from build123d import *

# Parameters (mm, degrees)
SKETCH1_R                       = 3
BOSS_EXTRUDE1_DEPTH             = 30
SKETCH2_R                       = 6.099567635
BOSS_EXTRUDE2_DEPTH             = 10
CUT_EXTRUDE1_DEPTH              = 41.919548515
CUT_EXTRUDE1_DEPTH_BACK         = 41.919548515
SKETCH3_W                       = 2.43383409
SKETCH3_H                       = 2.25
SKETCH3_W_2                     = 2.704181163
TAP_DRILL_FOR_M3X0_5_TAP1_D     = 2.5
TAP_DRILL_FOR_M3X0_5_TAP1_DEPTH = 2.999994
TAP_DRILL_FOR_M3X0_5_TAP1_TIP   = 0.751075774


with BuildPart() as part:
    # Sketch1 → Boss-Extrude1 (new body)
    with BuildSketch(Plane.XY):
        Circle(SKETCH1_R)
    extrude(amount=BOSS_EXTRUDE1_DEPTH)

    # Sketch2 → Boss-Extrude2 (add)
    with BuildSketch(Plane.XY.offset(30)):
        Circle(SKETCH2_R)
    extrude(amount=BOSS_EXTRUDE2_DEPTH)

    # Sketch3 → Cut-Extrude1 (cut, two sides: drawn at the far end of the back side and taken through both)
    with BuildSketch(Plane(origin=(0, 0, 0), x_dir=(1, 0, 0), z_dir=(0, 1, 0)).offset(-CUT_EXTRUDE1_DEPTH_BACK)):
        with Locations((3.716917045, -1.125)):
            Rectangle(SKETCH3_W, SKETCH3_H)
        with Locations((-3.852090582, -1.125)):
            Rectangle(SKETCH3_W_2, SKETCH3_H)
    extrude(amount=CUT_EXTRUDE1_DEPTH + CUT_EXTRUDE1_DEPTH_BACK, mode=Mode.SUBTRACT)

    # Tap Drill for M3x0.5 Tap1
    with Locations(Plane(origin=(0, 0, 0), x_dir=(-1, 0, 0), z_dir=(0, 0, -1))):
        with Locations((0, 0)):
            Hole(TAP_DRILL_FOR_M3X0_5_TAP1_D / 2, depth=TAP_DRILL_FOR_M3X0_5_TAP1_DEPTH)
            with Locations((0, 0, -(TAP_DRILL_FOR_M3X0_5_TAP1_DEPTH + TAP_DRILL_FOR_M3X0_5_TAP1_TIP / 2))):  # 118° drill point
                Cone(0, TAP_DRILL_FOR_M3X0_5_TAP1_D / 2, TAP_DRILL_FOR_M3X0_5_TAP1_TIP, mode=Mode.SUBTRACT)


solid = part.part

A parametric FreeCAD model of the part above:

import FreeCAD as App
import Part
import Sketcher
Q = App.Units.Quantity


def add_polygon(sketch, points):
    """Adds a closed chain of lines whose ends are joined by coincident constraints."""
    first, n = sketch.GeometryCount, len(points)
    for a, b in zip(points, points[1:] + points[:1]):
        sketch.addGeometry(Part.LineSegment(App.Vector(*a, 0), App.Vector(*b, 0)), False)
    for i in range(n):
        sketch.addConstraint(Sketcher.Constraint("Coincident", first + i, 2, first + (i + 1) % n, 1))

doc = App.newDocument("Part")
body = doc.addObject("PartDesign::Body", "Body")

# Sketch on XY plane
sketch1 = doc.addObject("Sketcher::SketchObject", "Sketch")
body.addObject(sketch1)
sketch1.AttachmentSupport = (doc.XY_Plane, [""])
sketch1.MapMode = "FlatFace"
sketch1.addGeometry(Part.Circle(App.Vector(0, 0, 0), App.Vector(0, 0, 1), 3), False)
sketch1.addConstraint([
    Sketcher.Constraint("Coincident", 0, 3, -1, 1),
    Sketcher.Constraint("Diameter", 0, Q("6 mm")),
])
pad1 = doc.addObject("PartDesign::Pad", "Pad")
body.addObject(pad1)
pad1.Profile = sketch1
pad1.Length = 30

# Sketch on XY plane
sketch2 = doc.addObject("Sketcher::SketchObject", "Sketch001")
body.addObject(sketch2)
sketch2.AttachmentSupport = (doc.XY_Plane, [""])
sketch2.MapMode = "FlatFace"
sketch2.AttachmentOffset = App.Placement(App.Vector(0, 0, 30), App.Rotation())
sketch2.addGeometry(Part.Circle(App.Vector(0, 0, 0), App.Vector(0, 0, 1), 6), False)
sketch2.addConstraint([
    Sketcher.Constraint("Coincident", 0, 3, -1, 1),
    Sketcher.Constraint("Diameter", 0, Q("12.199135 mm")),
])
pad2 = doc.addObject("PartDesign::Pad", "Pad001")
body.addObject(pad2)
pad2.Profile = sketch2
pad2.Length = 10

# Sketch on XZ plane
sketch3 = doc.addObject("Sketcher::SketchObject", "Sketch002")
body.addObject(sketch3)
sketch3.AttachmentSupport = (doc.XZ_Plane, [""])
sketch3.MapMode = "FlatFace"
add_polygon(sketch3, [(2.5, 0), (2.5, 2.2), (4.9, 2.2), (4.9, 0)])  # lines 0-3
add_polygon(sketch3, [(-5.2, 0), (-5.2, 2.2), (-2.5, 2.2), (-2.5, 0)])  # lines 4-7
sketch3.addConstraint([
    Sketcher.Constraint("Vertical", 0),
    Sketcher.Constraint("Horizontal", 1),
    Sketcher.Constraint("Vertical", 2),
    Sketcher.Constraint("Horizontal", 3),
    Sketcher.Constraint("Vertical", 4),
    Sketcher.Constraint("Horizontal", 5),
    Sketcher.Constraint("Vertical", 6),
    Sketcher.Constraint("Horizontal", 7),
    Sketcher.Constraint("Symmetric", 3, 2, 6, 2, -1, 1),
    Sketcher.Constraint("PointOnObject", 2, 2, -1),
    Sketcher.Constraint("Horizontal", 1, 2, 4, 2),
    Sketcher.Constraint("DistanceX", 5, 2, 0, 2, Q("5 mm")),
    Sketcher.Constraint("DistanceY", 0, 1, 0, 2, Q("2.25 mm")),
    Sketcher.Constraint("DistanceX", 5, 1, 5, 2, Q("2.704181 mm")),
    Sketcher.Constraint("DistanceX", 1, 1, 1, 2, Q("2.433834 mm")),
])
pocket1 = doc.addObject("PartDesign::Pocket", "Pocket")
body.addObject(pocket1)
pocket1.Profile = sketch3
pocket1.Type = "ThroughAll"
pocket1.Midplane = True

# Sketch on XY plane
sketch4 = doc.addObject("Sketcher::SketchObject", "Sketch003")
body.addObject(sketch4)
sketch4.AttachmentSupport = (doc.XY_Plane, [""])
sketch4.MapMode = "FlatFace"
sketch4.addGeometry(Part.Circle(App.Vector(0, 0, 0), App.Vector(0, 0, 1), 1.2), False)
sketch4.addConstraint([
    Sketcher.Constraint("Coincident", 0, 3, -1, 1),
    Sketcher.Constraint("Diameter", 0, Q("2.5 mm")),
])
doc.recompute()
hole = doc.addObject("PartDesign::Hole", "Hole")
body.addObject(hole)
hole.Profile = sketch4
hole.ThreadType = "None"
hole.Diameter = 2.5
hole.DepthType = "Dimension"
hole.Depth = 2.999994
hole.DrillPoint = "Angled"
hole.DrillPointAngle = 118
hole.Reversed = True

doc.recompute()
